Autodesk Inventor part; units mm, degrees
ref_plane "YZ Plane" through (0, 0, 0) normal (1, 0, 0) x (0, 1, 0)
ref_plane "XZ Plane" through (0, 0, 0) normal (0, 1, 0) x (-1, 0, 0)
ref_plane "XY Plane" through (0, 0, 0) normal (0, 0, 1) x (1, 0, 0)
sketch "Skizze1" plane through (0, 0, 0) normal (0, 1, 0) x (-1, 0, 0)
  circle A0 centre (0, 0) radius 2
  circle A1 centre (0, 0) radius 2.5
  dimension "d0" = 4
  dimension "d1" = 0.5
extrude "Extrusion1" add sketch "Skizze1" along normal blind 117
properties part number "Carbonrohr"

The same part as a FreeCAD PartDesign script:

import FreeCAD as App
import Part
import Sketcher

V = App.Vector
Q = App.Units.Quantity

doc = App.newDocument("Part")
body = doc.addObject("PartDesign::Body", "Body")

# Sketch on XZ plane
sketch1 = doc.addObject("Sketcher::SketchObject", "Sketch")
body.addObject(sketch1)
sketch1.AttachmentSupport = (doc.XZ_Plane, [""])
sketch1.MapMode = "FlatFace"
sketch1.addGeometry([
    Part.Circle(V(0, 0, 0), V(0, 0, 1), 2.5),
    Part.Circle(V(0, 0, 0), V(0, 0, 1), 2),
], False)
sketch1.addConstraint([
    Sketcher.Constraint("Coincident", 0, 3, -1, 1),
    Sketcher.Constraint("Coincident", 1, 3, -1, 1),
    Sketcher.Constraint("Diameter", 1, Q("4 mm")),
    Sketcher.Constraint("Diameter", 0, Q("5 mm")),
])
pad1 = doc.addObject("PartDesign::Pad", "Pad")
body.addObject(pad1)
pad1.Profile = sketch1
pad1.Length = 117
pad1.Reversed = True

doc.recompute()
